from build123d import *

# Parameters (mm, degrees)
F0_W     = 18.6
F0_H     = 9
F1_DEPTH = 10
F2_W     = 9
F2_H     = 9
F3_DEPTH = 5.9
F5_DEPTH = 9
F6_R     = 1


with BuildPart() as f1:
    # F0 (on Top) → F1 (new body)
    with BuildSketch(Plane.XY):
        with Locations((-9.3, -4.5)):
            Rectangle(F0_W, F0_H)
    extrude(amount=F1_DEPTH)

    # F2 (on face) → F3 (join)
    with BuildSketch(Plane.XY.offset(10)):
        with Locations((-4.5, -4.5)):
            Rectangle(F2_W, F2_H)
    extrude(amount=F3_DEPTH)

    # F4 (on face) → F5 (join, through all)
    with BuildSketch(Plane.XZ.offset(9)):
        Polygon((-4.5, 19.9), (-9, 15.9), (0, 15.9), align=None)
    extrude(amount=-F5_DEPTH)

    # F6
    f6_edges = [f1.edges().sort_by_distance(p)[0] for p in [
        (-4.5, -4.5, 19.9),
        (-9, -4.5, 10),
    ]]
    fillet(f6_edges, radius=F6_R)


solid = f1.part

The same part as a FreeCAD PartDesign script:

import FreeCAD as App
import Part
import Sketcher
from FreeCAD import Vector
Q = App.Units.Quantity


def edges_at(feature, points):
    """Names of the edges that pass closest to the given points."""
    edges = feature.Shape.Edges
    near = lambda p: min(range(len(edges)), key=lambda i: edges[i].distToShape(Part.Vertex(*p))[0])
    return sorted({f"Edge{near(p) + 1}" for p in points})

doc = App.newDocument("Part")
body = doc.addObject("PartDesign::Body", "Body")

# Sketch on XY plane
sketch1 = body.newObject("Sketcher::SketchObject", "Sketch")
sketch1.AttachmentSupport = (doc.getObject("XY_Plane"), [""])
sketch1.MapMode = "FlatFace"
sketch1.addGeometry([
    Part.LineSegment(Vector(-19, 0, 0), Vector(-19, -9, 0)),
    Part.LineSegment(Vector(-19, -9, 0), Vector(0, -9, 0)),
    Part.LineSegment(Vector(0, -9, 0), Vector(0, 0, 0)),
    Part.LineSegment(Vector(0, 0, 0), Vector(-19, 0, 0)),
], False)
sketch1.addConstraint([
    Sketcher.Constraint("Coincident", 0, 2, 1, 1),
    Sketcher.Constraint("Coincident", 1, 2, 2, 1),
    Sketcher.Constraint("Coincident", 2, 2, 3, 1),
    Sketcher.Constraint("Coincident", 3, 2, 0, 1),
    Sketcher.Constraint("Vertical", 0),
    Sketcher.Constraint("Horizontal", 1),
    Sketcher.Constraint("Vertical", 2),
    Sketcher.Constraint("Horizontal", 3),
    Sketcher.Constraint("Coincident", 2, 2, -1, 1),
    Sketcher.Constraint("DistanceY", 0, 2, 0, 1, Q("9 mm")),
    Sketcher.Constraint("DistanceX", 1, 1, 1, 2, Q("18.6 mm")),
])
pad1 = body.newObject("PartDesign::Pad", "Pad")
pad1.Profile = sketch1
pad1.Length = 10

# Sketch on XY plane
sketch2 = body.newObject("Sketcher::SketchObject", "Sketch001")
sketch2.AttachmentSupport = (doc.getObject("XY_Plane"), [""])
sketch2.MapMode = "FlatFace"
sketch2.AttachmentOffset = App.Placement(Vector(0, 0, 10), App.Rotation())
sketch2.addGeometry([
    Part.LineSegment(Vector(-9, 0, 0), Vector(-9, -9, 0)),
    Part.LineSegment(Vector(-9, -9, 0), Vector(0, -9, 0)),
    Part.LineSegment(Vector(0, -9, 0), Vector(0, 0, 0)),
    Part.LineSegment(Vector(0, 0, 0), Vector(-9, 0, 0)),
], False)
sketch2.addConstraint([
    Sketcher.Constraint("Coincident", 0, 2, 1, 1),
    Sketcher.Constraint("Coincident", 1, 2, 2, 1),
    Sketcher.Constraint("Coincident", 2, 2, 3, 1),
    Sketcher.Constraint("Coincident", 3, 2, 0, 1),
    Sketcher.Constraint("Vertical", 0),
    Sketcher.Constraint("Horizontal", 1),
    Sketcher.Constraint("Vertical", 2),
    Sketcher.Constraint("Horizontal", 3),
    Sketcher.Constraint("Coincident", 2, 2, -1, 1),
    Sketcher.Constraint("Equal", 3, 0),
    Sketcher.Constraint("DistanceX", 1, 1, 1, 2, Q("9 mm")),
])
pad2 = body.newObject("PartDesign::Pad", "Pad001")
pad2.Profile = sketch2
pad2.Length = 5.9

# Sketch on XZ plane
sketch3 = body.newObject("Sketcher::SketchObject", "Sketch002")
sketch3.AttachmentSupport = (doc.getObject("XZ_Plane"), [""])
sketch3.MapMode = "FlatFace"
sketch3.AttachmentOffset = App.Placement(Vector(0, 0, 9), App.Rotation())
sketch3.addGeometry([
    Part.LineSegment(Vector(-4, 20, 0), Vector(-9, 16, 0)),
    Part.LineSegment(Vector(-9, 16, 0), Vector(0, 16, 0)),
    Part.LineSegment(Vector(0, 16, 0), Vector(-4, 20, 0)),
], False)
sketch3.addConstraint([
    Sketcher.Constraint("Coincident", 0, 2, 1, 1),
    Sketcher.Constraint("Coincident", 1, 2, 2, 1),
    Sketcher.Constraint("Coincident", 2, 2, 0, 1),
    Sketcher.Constraint("Horizontal", 1),
    Sketcher.Constraint("PointOnObject", 1, 2, -2),
    Sketcher.Constraint("Equal", 0, 2),
    Sketcher.Constraint("DistanceX", 1, 1, 1, 2, Q("9 mm")),
    Sketcher.Constraint("DistanceY", 0, 2, 2, 2, Q("4 mm")),
    Sketcher.Constraint("DistanceY", -1, 1, 0, 2, Q("15.9 mm")),
])
pad3 = body.newObject("PartDesign::Pad", "Pad002")
pad3.Profile = sketch3
pad3.Length = 9
pad3.Reversed = True
doc.recompute()

fillet = body.newObject("PartDesign::Fillet", "Fillet")
fillet.Base = (pad3, edges_at(pad3, [(-4.5, -4.5, 19.9), (-9, -4.5, 10)]))
fillet.Radius = 1

doc.recompute()
